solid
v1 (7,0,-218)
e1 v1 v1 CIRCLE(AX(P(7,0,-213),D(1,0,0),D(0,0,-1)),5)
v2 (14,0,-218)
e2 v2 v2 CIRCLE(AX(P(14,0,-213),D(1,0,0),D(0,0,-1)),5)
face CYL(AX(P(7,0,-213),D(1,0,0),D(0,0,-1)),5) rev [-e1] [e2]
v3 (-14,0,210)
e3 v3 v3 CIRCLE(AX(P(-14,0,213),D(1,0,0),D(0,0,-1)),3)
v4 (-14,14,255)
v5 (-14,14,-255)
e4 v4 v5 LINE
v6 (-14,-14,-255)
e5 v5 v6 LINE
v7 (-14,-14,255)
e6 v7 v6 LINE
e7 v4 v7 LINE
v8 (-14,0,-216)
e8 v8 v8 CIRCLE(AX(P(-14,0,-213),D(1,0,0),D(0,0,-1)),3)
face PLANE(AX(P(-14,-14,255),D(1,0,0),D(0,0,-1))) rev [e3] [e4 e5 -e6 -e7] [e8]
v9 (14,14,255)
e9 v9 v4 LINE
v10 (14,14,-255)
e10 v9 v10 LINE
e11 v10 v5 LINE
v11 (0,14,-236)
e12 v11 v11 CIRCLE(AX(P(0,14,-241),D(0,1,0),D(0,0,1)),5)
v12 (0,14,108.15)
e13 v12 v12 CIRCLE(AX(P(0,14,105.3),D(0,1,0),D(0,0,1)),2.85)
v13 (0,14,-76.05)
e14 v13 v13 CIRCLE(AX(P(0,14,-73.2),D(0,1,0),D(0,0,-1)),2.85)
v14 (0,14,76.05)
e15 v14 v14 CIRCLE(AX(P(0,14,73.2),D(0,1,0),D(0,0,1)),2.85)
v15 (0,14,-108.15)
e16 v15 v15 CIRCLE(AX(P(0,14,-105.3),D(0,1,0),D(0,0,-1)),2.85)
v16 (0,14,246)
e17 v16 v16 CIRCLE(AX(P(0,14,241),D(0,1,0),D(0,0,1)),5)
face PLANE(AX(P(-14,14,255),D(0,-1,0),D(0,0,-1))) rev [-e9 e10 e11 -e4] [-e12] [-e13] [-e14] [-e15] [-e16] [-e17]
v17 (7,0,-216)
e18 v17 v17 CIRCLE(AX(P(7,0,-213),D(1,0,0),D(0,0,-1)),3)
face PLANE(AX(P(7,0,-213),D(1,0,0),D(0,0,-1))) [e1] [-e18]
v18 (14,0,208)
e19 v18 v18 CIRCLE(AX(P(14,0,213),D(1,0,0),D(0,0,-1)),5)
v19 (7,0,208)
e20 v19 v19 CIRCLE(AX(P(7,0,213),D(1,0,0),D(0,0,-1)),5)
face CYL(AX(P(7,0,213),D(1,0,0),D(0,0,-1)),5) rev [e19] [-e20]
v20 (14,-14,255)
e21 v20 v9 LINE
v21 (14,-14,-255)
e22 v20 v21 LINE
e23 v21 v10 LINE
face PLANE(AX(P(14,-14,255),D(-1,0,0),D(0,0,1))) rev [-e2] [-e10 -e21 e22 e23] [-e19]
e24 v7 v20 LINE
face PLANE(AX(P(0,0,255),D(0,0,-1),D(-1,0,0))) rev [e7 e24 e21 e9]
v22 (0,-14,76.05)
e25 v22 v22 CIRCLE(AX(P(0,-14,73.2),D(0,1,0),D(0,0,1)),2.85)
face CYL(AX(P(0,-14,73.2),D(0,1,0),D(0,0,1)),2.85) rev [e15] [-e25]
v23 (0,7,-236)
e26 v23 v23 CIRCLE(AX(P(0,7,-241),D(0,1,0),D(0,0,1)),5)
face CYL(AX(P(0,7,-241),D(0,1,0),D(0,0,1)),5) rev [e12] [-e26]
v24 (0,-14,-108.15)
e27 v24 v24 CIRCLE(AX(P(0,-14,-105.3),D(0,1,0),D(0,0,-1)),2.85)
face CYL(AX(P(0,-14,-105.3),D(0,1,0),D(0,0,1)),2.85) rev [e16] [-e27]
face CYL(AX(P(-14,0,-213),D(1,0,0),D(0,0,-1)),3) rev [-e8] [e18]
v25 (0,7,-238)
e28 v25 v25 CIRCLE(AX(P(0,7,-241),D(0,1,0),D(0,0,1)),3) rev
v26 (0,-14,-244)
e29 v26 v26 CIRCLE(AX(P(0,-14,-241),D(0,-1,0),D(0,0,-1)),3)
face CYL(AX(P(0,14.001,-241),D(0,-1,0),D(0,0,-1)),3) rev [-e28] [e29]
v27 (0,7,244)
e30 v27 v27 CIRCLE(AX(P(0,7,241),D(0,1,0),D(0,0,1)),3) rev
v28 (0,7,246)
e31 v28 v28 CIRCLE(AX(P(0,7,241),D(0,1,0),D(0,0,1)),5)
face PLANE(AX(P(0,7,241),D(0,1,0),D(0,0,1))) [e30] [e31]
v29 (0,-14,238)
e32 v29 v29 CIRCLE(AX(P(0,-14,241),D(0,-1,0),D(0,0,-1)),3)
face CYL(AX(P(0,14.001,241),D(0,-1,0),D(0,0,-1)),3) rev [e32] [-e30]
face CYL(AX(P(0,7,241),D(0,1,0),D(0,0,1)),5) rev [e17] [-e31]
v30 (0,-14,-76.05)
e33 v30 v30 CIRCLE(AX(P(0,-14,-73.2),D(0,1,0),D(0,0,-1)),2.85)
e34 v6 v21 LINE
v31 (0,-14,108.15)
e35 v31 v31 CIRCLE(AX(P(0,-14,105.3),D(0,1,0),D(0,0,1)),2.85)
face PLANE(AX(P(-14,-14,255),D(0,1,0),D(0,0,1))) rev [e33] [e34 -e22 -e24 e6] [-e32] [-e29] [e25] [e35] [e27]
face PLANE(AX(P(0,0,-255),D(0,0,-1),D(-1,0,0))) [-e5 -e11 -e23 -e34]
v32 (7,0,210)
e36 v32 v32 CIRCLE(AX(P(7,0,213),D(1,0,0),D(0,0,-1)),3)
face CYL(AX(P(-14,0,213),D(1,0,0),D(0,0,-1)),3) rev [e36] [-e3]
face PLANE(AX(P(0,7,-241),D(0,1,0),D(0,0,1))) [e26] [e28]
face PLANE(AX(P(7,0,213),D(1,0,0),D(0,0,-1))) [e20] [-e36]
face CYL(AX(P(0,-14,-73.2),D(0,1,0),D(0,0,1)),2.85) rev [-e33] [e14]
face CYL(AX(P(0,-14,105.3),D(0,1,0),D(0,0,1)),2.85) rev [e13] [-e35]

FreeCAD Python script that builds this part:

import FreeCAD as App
import Part
import Sketcher
from FreeCAD import Vector
Q = App.Units.Quantity


def add_polygon(sketch, points):
    """Adds a closed chain of lines whose ends are joined by coincident constraints."""
    first, n = sketch.GeometryCount, len(points)
    for a, b in zip(points, points[1:] + points[:1]):
        sketch.addGeometry(Part.LineSegment(App.Vector(*a, 0), App.Vector(*b, 0)), False)
    for i in range(n):
        sketch.addConstraint(Sketcher.Constraint("Coincident", first + i, 2, first + (i + 1) % n, 1))

doc = App.newDocument("Part")
params = doc.addObject("Spreadsheet::Sheet", "Params")
for row, (alias, value) in enumerate([
    ("sketch1_width", "28 mm"),
    ("pad1_length", "510 mm"),
    ("sketch2_diameter", "10 mm"),
    ("pocket1_length", "7 mm"),
    ("sketch3_diameter", "6 mm"),
    ("sketch4_diameter", "6 mm"),
    ("sketch5_diameter", "6 mm"),
    ("sketch6_diameter", "10 mm"),
    ("pocket5_length", "7 mm"),
    ("sketch7_diameter", "5.7 mm"),
], start=1):
    params.set(f"A{row}", alias)
    params.set(f"B{row}", "=" + value)
    params.setAlias(f"B{row}", alias)

body = doc.addObject("PartDesign::Body", "Body")

sketch1 = doc.addObject("Sketcher::SketchObject", "Sketch")
body.addObject(sketch1)
sketch1.AttachmentSupport = (doc.XY_Plane, [""])
sketch1.MapMode = "FlatFace"
add_polygon(sketch1, [(-14, 14), (-14, -14), (14, -14), (14, 14)])
sketch1.addConstraint([
    Sketcher.Constraint("Vertical", 0),
    Sketcher.Constraint("Horizontal", 1),
    Sketcher.Constraint("Vertical", 2),
    Sketcher.Constraint("Horizontal", 3),
    Sketcher.Constraint("Symmetric", 0, 2, 2, 2, -1, 1),
    Sketcher.Constraint("Equal", 3, 0),
    Sketcher.Constraint("DistanceX", 1, 1, 1, 2, Q("28 mm")),
])
sketch1.setExpression("Constraints[10]", "Params.sketch1_width")
pad1 = doc.addObject("PartDesign::Pad", "Pad")
body.addObject(pad1)
pad1.Profile = sketch1
pad1.setExpression("Length", "Params.pad1_length")
pad1.Midplane = True

sketch2 = doc.addObject("Sketcher::SketchObject", "Sketch001")
body.addObject(sketch2)
sketch2.AttachmentSupport = (doc.YZ_Plane, [""])
sketch2.MapMode = "FlatFace"
sketch2.AttachmentOffset = App.Placement(Vector(0, 0, 14), App.Rotation())
sketch2.addGeometry([
    Part.Circle(Vector(0, 213, 0), Vector(0, 0, 1), 5),
    Part.Circle(Vector(0, -213, 0), Vector(0, 0, 1), 5),
], False)
sketch2.addConstraint([
    Sketcher.Constraint("Equal", 0, 1),
    Sketcher.Constraint("Symmetric", 0, 3, 1, 3, -1, 1),
    Sketcher.Constraint("PointOnObject", 0, 3, -2),
    Sketcher.Constraint("Diameter", 0, Q("10 mm")),
    Sketcher.Constraint("DistanceY", -1, 1, 0, 3, Q("213 mm")),
])
sketch2.setExpression("Constraints[3]", "Params.sketch2_diameter")
pocket1 = doc.addObject("PartDesign::Pocket", "Pocket")
body.addObject(pocket1)
pocket1.Profile = sketch2
pocket1.setExpression("Length", "Params.pocket1_length")

sketch3 = doc.addObject("Sketcher::SketchObject", "Sketch002")
body.addObject(sketch3)
sketch3.AttachmentSupport = (doc.YZ_Plane, [""])
sketch3.MapMode = "FlatFace"
sketch3.AttachmentOffset = App.Placement(Vector(0, 0, 14), App.Rotation())
sketch3.addGeometry([
    Part.Circle(Vector(0, 213, 0), Vector(0, 0, 1), 3),
    Part.Circle(Vector(0, -213, 0), Vector(0, 0, 1), 3),
], False)
sketch3.addConstraint([
    Sketcher.Constraint("Equal", 0, 1),
    Sketcher.Constraint("Symmetric", 0, 3, 1, 3, -1, 1),
    Sketcher.Constraint("PointOnObject", 0, 3, -2),
    Sketcher.Constraint("Diameter", 0, Q("6 mm")),
    Sketcher.Constraint("DistanceY", -1, 1, 0, 3, Q("213 mm")),
])
sketch3.setExpression("Constraints[3]", "Params.sketch3_diameter")
pocket2 = doc.addObject("PartDesign::Pocket", "Pocket001")
body.addObject(pocket2)
pocket2.Profile = sketch3
pocket2.Type = "ThroughAll"
pocket2.Midplane = True

sketch4 = doc.addObject("Sketcher::SketchObject", "Sketch003")
body.addObject(sketch4)
sketch4.AttachmentSupport = (doc.XZ_Plane, [""])
sketch4.MapMode = "FlatFace"
sketch4.AttachmentOffset = App.Placement(Vector(0, 0, 14), App.Rotation())
sketch4.addGeometry(Part.Circle(Vector(0, -241, 0), Vector(0, 0, 1), 3), False)
sketch4.addConstraint([
    Sketcher.Constraint("PointOnObject", 0, 3, -2),
    Sketcher.Constraint("Diameter", 0, Q("6 mm")),
    Sketcher.Constraint("DistanceY", 0, 3, -1, 1, Q("241 mm")),
])
sketch4.setExpression("Constraints[1]", "Params.sketch4_diameter")
pocket3 = doc.addObject("PartDesign::Pocket", "Pocket002")
body.addObject(pocket3)
pocket3.Profile = sketch4
pocket3.Type = "UpToFirst"

sketch5 = doc.addObject("Sketcher::SketchObject", "Sketch004")
body.addObject(sketch5)
sketch5.AttachmentSupport = (doc.XZ_Plane, [""])
sketch5.MapMode = "FlatFace"
sketch5.AttachmentOffset = App.Placement(Vector(0, 0, 14), App.Rotation())
sketch5.addGeometry(Part.Circle(Vector(0, 241, 0), Vector(0, 0, 1), 3), False)
sketch5.addConstraint([
    Sketcher.Constraint("PointOnObject", 0, 3, -2),
    Sketcher.Constraint("Diameter", 0, Q("6 mm")),
    Sketcher.Constraint("DistanceY", -1, 1, 0, 3, Q("241 mm")),
])
sketch5.setExpression("Constraints[1]", "Params.sketch5_diameter")
pocket4 = doc.addObject("PartDesign::Pocket", "Pocket003")
body.addObject(pocket4)
pocket4.Profile = sketch5
pocket4.Type = "UpToFirst"

sketch6 = doc.addObject("Sketcher::SketchObject", "Sketch005")
body.addObject(sketch6)
sketch6.AttachmentSupport = (doc.XZ_Plane, [""])
sketch6.MapMode = "FlatFace"
sketch6.AttachmentOffset = App.Placement(Vector(0, 0, -14), App.Rotation())
sketch6.addGeometry([
    Part.Circle(Vector(0, 241, 0), Vector(0, 0, 1), 5),
    Part.Circle(Vector(0, -241, 0), Vector(0, 0, 1), 5),
], False)
sketch6.addConstraint([
    Sketcher.Constraint("Equal", 0, 1),
    Sketcher.Constraint("Symmetric", 0, 3, 1, 3, -1, 1),
    Sketcher.Constraint("PointOnObject", 0, 3, -2),
    Sketcher.Constraint("Diameter", 0, Q("10 mm")),
    Sketcher.Constraint("DistanceY", -1, 1, 0, 3, Q("241 mm")),
])
sketch6.setExpression("Constraints[3]", "Params.sketch6_diameter")
pocket5 = doc.addObject("PartDesign::Pocket", "Pocket004")
body.addObject(pocket5)
pocket5.Profile = sketch6
pocket5.setExpression("Length", "Params.pocket5_length")
pocket5.Reversed = True

sketch7 = doc.addObject("Sketcher::SketchObject", "Sketch006")
body.addObject(sketch7)
sketch7.AttachmentSupport = (doc.XZ_Plane, [""])
sketch7.MapMode = "FlatFace"
sketch7.AttachmentOffset = App.Placement(Vector(0, 0, -14), App.Rotation())
sketch7.addGeometry([
    Part.Circle(Vector(0, 105.3, 0), Vector(0, 0, 1), 2.9),
    Part.Circle(Vector(0, 73.2, 0), Vector(0, 0, 1), 2.9),
    Part.Circle(Vector(0, -73.2, 0), Vector(0, 0, 1), 2.9),
    Part.Circle(Vector(0, -105.3, 0), Vector(0, 0, 1), 2.9),
], False)
sketch7.addConstraint([
    Sketcher.Constraint("Equal", 0, 1),
    Sketcher.Constraint("Equal", 1, 2),
    Sketcher.Constraint("Equal", 2, 3),
    Sketcher.Constraint("Symmetric", 1, 3, 2, 3, -1, 1),
    Sketcher.Constraint("Symmetric", 0, 3, 3, 3, -1, 1),
    Sketcher.Constraint("PointOnObject", 0, 3, -2),
    Sketcher.Constraint("PointOnObject", 1, 3, -2),
    Sketcher.Constraint("Diameter", 0, Q("5.7 mm")),
    Sketcher.Constraint("DistanceY", -1, 1, 0, 3, Q("105.3 mm")),
    Sketcher.Constraint("DistanceY", -1, 1, 1, 3, Q("73.2 mm")),
])
sketch7.setExpression("Constraints[7]", "Params.sketch7_diameter")
pocket6 = doc.addObject("PartDesign::Pocket", "Pocket005")
body.addObject(pocket6)
pocket6.Profile = sketch7
pocket6.Type = "ThroughAll"
pocket6.Reversed = True

doc.recompute()
